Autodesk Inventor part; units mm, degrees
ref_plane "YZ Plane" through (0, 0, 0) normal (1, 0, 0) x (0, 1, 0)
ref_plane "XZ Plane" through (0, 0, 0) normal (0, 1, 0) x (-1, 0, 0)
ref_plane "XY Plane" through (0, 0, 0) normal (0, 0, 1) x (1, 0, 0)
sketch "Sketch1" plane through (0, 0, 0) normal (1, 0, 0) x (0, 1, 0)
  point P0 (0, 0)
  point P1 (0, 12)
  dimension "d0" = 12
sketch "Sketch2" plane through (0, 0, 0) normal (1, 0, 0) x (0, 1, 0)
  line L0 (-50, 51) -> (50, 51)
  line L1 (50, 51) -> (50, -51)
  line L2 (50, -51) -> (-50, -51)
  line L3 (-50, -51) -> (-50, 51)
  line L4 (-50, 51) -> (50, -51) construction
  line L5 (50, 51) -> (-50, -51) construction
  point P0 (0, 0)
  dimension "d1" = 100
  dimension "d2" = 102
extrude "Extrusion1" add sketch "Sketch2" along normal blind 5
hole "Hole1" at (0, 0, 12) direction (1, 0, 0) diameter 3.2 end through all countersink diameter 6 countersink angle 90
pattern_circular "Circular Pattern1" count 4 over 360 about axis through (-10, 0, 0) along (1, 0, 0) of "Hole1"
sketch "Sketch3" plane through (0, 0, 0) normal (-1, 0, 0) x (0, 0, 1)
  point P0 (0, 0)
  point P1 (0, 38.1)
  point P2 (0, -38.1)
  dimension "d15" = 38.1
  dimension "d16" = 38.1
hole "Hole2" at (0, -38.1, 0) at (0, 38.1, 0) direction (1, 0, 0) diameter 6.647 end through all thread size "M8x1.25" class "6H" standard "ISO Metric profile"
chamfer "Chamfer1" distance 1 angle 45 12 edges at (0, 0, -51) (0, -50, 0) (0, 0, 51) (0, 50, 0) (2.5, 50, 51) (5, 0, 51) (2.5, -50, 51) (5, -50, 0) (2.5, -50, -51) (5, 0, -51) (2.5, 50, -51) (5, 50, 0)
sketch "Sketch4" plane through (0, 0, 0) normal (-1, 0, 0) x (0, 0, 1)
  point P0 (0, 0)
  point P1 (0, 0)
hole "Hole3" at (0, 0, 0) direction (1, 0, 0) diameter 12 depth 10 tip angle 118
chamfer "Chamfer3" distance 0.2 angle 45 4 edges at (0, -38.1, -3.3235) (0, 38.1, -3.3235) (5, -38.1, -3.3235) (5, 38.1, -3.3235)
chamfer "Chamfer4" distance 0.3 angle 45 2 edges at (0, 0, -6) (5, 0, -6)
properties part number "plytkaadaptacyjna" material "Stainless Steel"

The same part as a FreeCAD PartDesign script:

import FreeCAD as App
import Part
import Sketcher

V = App.Vector
Q = App.Units.Quantity


def edges_at(feature, points):
    """Names of the edges that pass closest to the given points."""
    edges = feature.Shape.Edges
    near = lambda p: min(range(len(edges)), key=lambda i: edges[i].distToShape(Part.Vertex(*p))[0])
    return sorted({f"Edge{near(p) + 1}" for p in points})


def add_polygon(sketch, points):
    """Adds a closed chain of lines whose ends are joined by coincident constraints."""
    first, n = sketch.GeometryCount, len(points)
    for a, b in zip(points, points[1:] + points[:1]):
        sketch.addGeometry(Part.LineSegment(App.Vector(*a, 0), App.Vector(*b, 0)), False)
    for i in range(n):
        sketch.addConstraint(Sketcher.Constraint("Coincident", first + i, 2, first + (i + 1) % n, 1))

doc = App.newDocument("Part")
body = doc.addObject("PartDesign::Body", "Body")

# Sketch on YZ plane
sketch1 = body.newObject("Sketcher::SketchObject", "Sketch")
sketch1.AttachmentSupport = (doc.getObject("YZ_Plane"), [""])
sketch1.MapMode = "FlatFace"
add_polygon(sketch1, [(50, 51), (-50, 51), (-50, -51), (50, -51)])  # lines 0-3
sketch1.addConstraint(Sketcher.Constraint("Horizontal", 0))
sketch1.addConstraint(Sketcher.Constraint("Vertical", 1))
sketch1.addConstraint(Sketcher.Constraint("Horizontal", 2))
sketch1.addConstraint(Sketcher.Constraint("Vertical", 3))
sketch1.addConstraint(Sketcher.Constraint("Symmetric", 0, 2, 2, 2, -1, 1))
sketch1.addConstraint(Sketcher.Constraint("DistanceX", 0, 2, 0, 1, Q("100 mm")))
sketch1.addConstraint(Sketcher.Constraint("DistanceY", 1, 2, 1, 1, Q("102 mm")))
pad1 = body.newObject("PartDesign::Pad", "Pad")
pad1.Profile = sketch1
pad1.Length = 5

# Sketch on YZ plane
sketch2 = body.newObject("Sketcher::SketchObject", "Sketch001")
sketch2.AttachmentSupport = (doc.getObject("YZ_Plane"), [""])
sketch2.MapMode = "FlatFace"
sketch2.addGeometry(Part.Circle(V(0, 12, 0), V(0, 0, 1), 1.6), False)
sketch2.addConstraint(Sketcher.Constraint("PointOnObject", 0, 3, -2))
sketch2.addConstraint(Sketcher.Constraint("Diameter", 0, Q("3.2 mm")))
sketch2.addConstraint(Sketcher.Constraint("DistanceY", -1, 1, 0, 3, Q("12 mm")))
doc.recompute()
hole = body.newObject("PartDesign::Hole", "Hole")
hole.Profile = sketch2
hole.ThreadType = "None"
hole.Diameter = 3.2
hole.DepthType = "ThroughAll"
hole.HoleCutType = "Countersink"
hole.HoleCutDiameter = 6
hole.HoleCutCountersinkAngle = 90
hole.Reversed = True
doc.recompute()

polarpattern = body.newObject("PartDesign::PolarPattern", "PolarPattern")
polarpattern.Originals = [hole]
polarpattern.Axis = (doc.getObject("X_Axis"), [""])
polarpattern.Angle = 360
polarpattern.Occurrences = 4
body.Tip = polarpattern

# Sketch on YZ plane
sketch3 = body.newObject("Sketcher::SketchObject", "Sketch002")
sketch3.AttachmentSupport = (doc.getObject("YZ_Plane"), [""])
sketch3.MapMode = "FlatFace"
sketch3.addGeometry(Part.Circle(V(-38.1, 0, 0), V(0, 0, 1), 3.3), False)
sketch3.addGeometry(Part.Circle(V(38.1, 0, 0), V(0, 0, 1), 3.3), False)
sketch3.addConstraint(Sketcher.Constraint("Equal", 0, 1))
sketch3.addConstraint(Sketcher.Constraint("Symmetric", 0, 3, 1, 3, -1, 1))
sketch3.addConstraint(Sketcher.Constraint("PointOnObject", 0, 3, -1))
sketch3.addConstraint(Sketcher.Constraint("Diameter", 0, Q("6.647 mm")))
sketch3.addConstraint(Sketcher.Constraint("DistanceX", 0, 3, -1, 1, Q("38.1 mm")))
doc.recompute()
hole2 = body.newObject("PartDesign::Hole", "Hole001")
hole2.Profile = sketch3
hole2.ThreadType = "None"
hole2.Diameter = 6.647
hole2.DepthType = "ThroughAll"
hole2.Reversed = True
doc.recompute()

chamfer = body.newObject("PartDesign::Chamfer", "Chamfer")
chamfer.Base = (hole2, edges_at(hole2, [
    (0, 0, -51),
    (0, -50, 0),
    (0, 0, 51),
    (0, 50, 0),
    (2.5, 50, 51),
    (5, 0, 51),
    (2.5, -50, 51),
    (5, -50, 0),
    (2.5, -50, -51),
    (5, 0, -51),
    (2.5, 50, -51),
    (5, 50, 0),
]))
chamfer.Size = 1

# Sketch on YZ plane
sketch4 = body.newObject("Sketcher::SketchObject", "Sketch003")
sketch4.AttachmentSupport = (doc.getObject("YZ_Plane"), [""])
sketch4.MapMode = "FlatFace"
sketch4.addGeometry(Part.Circle(V(0, 0, 0), V(0, 0, 1), 6), False)
sketch4.addConstraint(Sketcher.Constraint("Coincident", 0, 3, -1, 1))
sketch4.addConstraint(Sketcher.Constraint("Diameter", 0, Q("12 mm")))
doc.recompute()
hole3 = body.newObject("PartDesign::Hole", "Hole002")
hole3.Profile = sketch4
hole3.ThreadType = "None"
hole3.Diameter = 12
hole3.DepthType = "Dimension"
hole3.Depth = 10
hole3.DrillPoint = "Angled"
hole3.DrillPointAngle = 118
hole3.Reversed = True
doc.recompute()

chamfer2 = body.newObject("PartDesign::Chamfer", "Chamfer001")
chamfer2.Base = (hole3, edges_at(hole3, [
    (0, -38.1, -3.324),
    (0, 38.1, -3.324),
    (5, -38.1, -3.324),
    (5, 38.1, -3.324),
]))
chamfer2.Size = 0.2
doc.recompute()

chamfer3 = body.newObject("PartDesign::Chamfer", "Chamfer002")
chamfer3.Base = (chamfer2, edges_at(chamfer2, [(0, 0, -6), (5, 0, -6)]))
chamfer3.Size = 0.3

doc.recompute()
